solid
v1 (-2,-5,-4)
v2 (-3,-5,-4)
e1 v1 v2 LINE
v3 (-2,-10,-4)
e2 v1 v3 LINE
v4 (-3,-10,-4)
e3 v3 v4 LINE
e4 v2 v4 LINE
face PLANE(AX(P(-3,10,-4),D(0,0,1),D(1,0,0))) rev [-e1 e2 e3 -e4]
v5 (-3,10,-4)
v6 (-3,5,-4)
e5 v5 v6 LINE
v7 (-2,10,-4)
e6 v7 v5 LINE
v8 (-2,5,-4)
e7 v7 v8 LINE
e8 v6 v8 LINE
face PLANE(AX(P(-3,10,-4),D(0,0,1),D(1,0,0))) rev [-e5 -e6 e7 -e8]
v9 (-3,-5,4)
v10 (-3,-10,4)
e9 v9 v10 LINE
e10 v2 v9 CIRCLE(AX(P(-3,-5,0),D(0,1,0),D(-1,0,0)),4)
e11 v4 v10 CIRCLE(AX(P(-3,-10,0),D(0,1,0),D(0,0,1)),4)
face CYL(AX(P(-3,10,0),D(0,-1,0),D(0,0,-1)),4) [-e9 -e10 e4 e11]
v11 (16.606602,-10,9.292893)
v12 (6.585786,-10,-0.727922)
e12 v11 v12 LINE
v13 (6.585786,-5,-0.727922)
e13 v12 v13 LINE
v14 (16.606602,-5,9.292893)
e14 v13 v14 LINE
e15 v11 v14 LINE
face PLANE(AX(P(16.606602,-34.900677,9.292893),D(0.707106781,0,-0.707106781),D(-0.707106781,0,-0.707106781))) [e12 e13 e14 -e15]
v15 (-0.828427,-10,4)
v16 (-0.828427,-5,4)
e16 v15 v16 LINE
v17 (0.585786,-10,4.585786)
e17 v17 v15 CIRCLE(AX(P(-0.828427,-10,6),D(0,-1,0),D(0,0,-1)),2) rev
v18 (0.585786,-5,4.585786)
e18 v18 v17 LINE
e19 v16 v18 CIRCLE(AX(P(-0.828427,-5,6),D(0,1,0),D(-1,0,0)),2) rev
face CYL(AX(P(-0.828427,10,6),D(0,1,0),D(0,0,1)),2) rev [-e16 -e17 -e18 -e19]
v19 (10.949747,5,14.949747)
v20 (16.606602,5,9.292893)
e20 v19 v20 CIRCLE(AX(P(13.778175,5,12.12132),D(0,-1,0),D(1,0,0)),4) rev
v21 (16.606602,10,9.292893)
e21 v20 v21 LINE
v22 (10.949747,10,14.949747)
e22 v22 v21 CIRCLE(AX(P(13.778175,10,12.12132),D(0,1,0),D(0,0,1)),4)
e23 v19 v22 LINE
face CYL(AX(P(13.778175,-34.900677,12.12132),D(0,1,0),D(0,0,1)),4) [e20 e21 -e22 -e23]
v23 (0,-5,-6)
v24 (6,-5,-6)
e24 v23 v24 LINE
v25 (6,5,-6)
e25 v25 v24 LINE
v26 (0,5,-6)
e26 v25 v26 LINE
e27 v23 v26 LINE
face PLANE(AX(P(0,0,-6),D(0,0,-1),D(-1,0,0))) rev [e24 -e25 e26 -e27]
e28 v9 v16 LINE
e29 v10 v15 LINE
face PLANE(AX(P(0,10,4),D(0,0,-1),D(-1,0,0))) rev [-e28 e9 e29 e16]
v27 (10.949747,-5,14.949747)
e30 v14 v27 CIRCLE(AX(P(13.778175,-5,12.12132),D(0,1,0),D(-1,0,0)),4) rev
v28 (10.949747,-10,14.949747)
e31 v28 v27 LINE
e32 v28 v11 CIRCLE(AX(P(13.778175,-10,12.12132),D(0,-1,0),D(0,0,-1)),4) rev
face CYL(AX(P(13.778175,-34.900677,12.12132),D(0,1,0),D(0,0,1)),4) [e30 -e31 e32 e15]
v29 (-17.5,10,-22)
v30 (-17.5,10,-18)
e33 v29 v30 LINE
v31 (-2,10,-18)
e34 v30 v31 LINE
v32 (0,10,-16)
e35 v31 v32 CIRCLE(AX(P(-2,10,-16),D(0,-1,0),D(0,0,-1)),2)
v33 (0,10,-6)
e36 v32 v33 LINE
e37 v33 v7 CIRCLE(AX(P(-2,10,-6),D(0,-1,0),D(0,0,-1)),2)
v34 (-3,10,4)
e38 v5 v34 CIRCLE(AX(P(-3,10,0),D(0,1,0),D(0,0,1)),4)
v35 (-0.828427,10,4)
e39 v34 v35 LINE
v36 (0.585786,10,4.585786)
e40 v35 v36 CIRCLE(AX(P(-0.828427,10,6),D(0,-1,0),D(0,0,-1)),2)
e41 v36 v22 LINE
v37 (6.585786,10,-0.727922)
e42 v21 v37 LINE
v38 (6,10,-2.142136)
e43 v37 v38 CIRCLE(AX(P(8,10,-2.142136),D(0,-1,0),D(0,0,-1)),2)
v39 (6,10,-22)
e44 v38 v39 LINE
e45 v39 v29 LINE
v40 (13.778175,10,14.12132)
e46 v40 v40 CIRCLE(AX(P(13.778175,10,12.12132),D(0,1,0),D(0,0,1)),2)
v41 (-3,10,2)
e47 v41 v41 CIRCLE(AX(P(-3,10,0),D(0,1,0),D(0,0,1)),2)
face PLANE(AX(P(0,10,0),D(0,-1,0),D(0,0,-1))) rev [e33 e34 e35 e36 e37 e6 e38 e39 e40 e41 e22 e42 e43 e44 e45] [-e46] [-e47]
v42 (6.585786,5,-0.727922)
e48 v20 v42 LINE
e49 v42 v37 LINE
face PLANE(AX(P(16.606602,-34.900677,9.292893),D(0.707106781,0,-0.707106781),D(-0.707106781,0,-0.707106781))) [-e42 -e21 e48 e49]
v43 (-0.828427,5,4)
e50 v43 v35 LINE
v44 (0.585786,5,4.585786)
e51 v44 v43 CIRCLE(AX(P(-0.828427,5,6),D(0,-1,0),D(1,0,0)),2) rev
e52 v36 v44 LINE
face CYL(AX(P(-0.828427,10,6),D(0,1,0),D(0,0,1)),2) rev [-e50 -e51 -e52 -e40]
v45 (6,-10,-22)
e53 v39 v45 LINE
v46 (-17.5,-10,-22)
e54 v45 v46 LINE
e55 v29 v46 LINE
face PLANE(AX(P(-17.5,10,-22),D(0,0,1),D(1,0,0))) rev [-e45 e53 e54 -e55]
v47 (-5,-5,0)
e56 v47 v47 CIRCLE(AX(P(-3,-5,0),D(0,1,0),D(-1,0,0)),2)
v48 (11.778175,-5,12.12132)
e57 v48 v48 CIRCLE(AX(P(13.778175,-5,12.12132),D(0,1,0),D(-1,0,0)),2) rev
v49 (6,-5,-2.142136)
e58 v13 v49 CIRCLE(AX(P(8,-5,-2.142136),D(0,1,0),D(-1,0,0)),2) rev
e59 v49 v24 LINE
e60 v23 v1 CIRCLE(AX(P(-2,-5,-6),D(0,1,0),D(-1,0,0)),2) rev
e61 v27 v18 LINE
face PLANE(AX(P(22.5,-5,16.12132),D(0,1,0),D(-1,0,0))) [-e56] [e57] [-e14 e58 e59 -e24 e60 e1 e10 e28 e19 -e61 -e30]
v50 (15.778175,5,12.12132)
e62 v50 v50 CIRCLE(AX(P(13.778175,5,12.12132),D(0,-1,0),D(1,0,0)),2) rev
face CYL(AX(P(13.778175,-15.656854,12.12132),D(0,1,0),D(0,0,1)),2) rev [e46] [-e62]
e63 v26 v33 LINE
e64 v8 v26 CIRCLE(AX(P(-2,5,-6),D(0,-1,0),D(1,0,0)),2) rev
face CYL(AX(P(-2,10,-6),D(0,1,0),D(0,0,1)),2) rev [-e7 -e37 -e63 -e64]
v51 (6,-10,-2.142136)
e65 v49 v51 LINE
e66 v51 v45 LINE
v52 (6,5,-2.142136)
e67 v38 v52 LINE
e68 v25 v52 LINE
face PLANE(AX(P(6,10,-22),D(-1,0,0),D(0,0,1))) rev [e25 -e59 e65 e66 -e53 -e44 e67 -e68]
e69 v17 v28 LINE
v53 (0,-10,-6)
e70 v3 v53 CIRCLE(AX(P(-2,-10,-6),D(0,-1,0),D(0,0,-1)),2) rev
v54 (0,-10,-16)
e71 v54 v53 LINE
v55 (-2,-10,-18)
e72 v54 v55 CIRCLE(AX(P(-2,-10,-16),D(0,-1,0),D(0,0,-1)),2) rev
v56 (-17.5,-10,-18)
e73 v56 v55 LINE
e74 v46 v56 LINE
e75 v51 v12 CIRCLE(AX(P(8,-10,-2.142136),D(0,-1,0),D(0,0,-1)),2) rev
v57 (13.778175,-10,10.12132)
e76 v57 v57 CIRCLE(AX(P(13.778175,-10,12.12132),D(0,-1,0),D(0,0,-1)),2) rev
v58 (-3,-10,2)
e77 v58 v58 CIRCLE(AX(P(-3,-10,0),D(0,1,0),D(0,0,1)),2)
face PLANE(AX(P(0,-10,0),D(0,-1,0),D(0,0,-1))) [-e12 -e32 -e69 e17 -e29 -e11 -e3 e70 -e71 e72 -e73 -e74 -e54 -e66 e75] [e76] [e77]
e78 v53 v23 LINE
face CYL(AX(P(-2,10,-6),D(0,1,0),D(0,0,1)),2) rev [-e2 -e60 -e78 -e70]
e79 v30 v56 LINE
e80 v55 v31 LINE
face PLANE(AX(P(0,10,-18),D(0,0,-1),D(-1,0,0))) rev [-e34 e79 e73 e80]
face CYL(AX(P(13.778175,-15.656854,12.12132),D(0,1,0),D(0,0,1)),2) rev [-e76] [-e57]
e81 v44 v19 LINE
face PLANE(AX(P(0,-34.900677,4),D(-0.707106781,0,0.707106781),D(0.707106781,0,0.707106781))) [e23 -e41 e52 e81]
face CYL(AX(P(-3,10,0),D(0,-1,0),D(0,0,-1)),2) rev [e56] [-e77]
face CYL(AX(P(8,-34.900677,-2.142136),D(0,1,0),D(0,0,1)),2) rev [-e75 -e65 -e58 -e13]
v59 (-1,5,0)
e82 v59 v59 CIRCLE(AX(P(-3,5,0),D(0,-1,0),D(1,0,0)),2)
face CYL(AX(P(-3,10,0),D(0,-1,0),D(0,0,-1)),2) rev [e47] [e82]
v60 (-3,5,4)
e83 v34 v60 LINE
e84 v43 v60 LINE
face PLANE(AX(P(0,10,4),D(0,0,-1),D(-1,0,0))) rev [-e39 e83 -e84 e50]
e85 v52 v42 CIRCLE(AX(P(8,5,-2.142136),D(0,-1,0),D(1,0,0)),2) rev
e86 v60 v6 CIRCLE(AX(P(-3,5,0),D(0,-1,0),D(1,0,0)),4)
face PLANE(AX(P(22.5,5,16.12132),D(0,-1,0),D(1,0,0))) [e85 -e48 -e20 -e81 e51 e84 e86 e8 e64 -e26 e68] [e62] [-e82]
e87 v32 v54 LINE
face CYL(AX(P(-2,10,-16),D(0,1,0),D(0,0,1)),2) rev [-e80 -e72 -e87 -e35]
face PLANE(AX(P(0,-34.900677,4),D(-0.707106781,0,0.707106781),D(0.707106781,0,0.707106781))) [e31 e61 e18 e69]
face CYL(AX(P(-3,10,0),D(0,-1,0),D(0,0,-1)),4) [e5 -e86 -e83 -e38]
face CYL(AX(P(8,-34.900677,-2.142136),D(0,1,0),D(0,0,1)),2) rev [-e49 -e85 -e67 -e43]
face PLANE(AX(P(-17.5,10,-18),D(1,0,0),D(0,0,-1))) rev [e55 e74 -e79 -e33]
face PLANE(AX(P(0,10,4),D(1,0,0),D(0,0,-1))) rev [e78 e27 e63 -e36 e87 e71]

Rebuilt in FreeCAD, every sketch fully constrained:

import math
import FreeCAD as App
import Part
import Sketcher
Q = App.Units.Quantity


def edges_at(feature, points):
    """Names of the edges that pass closest to the given points."""
    edges = feature.Shape.Edges
    near = lambda p: min(range(len(edges)), key=lambda i: edges[i].distToShape(Part.Vertex(*p))[0])
    return sorted({f"Edge{near(p) + 1}" for p in points})


def add_polygon(sketch, points):
    """Adds a closed chain of lines whose ends are joined by coincident constraints."""
    first, n = sketch.GeometryCount, len(points)
    for a, b in zip(points, points[1:] + points[:1]):
        sketch.addGeometry(Part.LineSegment(App.Vector(*a, 0), App.Vector(*b, 0)), False)
    for i in range(n):
        sketch.addConstraint(Sketcher.Constraint("Coincident", first + i, 2, first + (i + 1) % n, 1))

doc = App.newDocument("Part")
body = doc.addObject("PartDesign::Body", "Body")

sketch1 = doc.addObject("Sketcher::SketchObject", "Sketch")
body.addObject(sketch1)
sketch1.AttachmentSupport = (doc.XZ_Plane, [""])
sketch1.MapMode = "FlatFace"
add_polygon(sketch1, [(0, -18), (0, 4), (6, 4), (6, -22), (-17.5, -22), (-17.5, -18)])
sketch1.addConstraint(Sketcher.Constraint("Vertical", 0))
sketch1.addConstraint(Sketcher.Constraint("Horizontal", 1))
sketch1.addConstraint(Sketcher.Constraint("Vertical", 2))
sketch1.addConstraint(Sketcher.Constraint("Horizontal", 3))
sketch1.addConstraint(Sketcher.Constraint("Vertical", 4))
sketch1.addConstraint(Sketcher.Constraint("Horizontal", 5))
sketch1.addConstraint(Sketcher.Constraint("PointOnObject", 0, 2, -2))
sketch1.addConstraint(Sketcher.Constraint("DistanceX", 1, 1, 1, 2, 6.0))
sketch1.addConstraint(Sketcher.Constraint("DistanceY", 0, 1, 0, 2, 22.0))
sketch1.addConstraint(Sketcher.Constraint("DistanceY", 2, 2, 2, 1, 26.0))
sketch1.addConstraint(Sketcher.Constraint("DistanceX", 3, 2, 3, 1, 23.5))
sketch1.addConstraint(Sketcher.Constraint("DistanceY", -1, 1, 0, 2, 4.0))
pad1 = doc.addObject("PartDesign::Pad", "Pad")
body.addObject(pad1)
pad1.Profile = sketch1
pad1.Length = 20
pad1.Midplane = True

sketch2 = doc.addObject("Sketcher::SketchObject", "Sketch001")
body.addObject(sketch2)
sketch2.AttachmentSupport = (doc.XZ_Plane, [""])
sketch2.MapMode = "FlatFace"
sketch2.addGeometry(Part.LineSegment(App.Vector(0, -4, 0), App.Vector(-3, -4, 0)), False)
sketch2.addGeometry(Part.ArcOfCircle(Part.Circle(App.Vector(-3, 0, 0), App.Vector(0, 0, 1), 4), math.radians(90), math.radians(270)), False)
sketch2.addGeometry(Part.LineSegment(App.Vector(-3, 4, 0), App.Vector(0, 4, 0)), False)
sketch2.addGeometry(Part.LineSegment(App.Vector(0, 4, 0), App.Vector(0, -4, 0)), False)
sketch2.addGeometry(Part.Circle(App.Vector(-3, 0, 0), App.Vector(0, 0, 1), 2), False)
sketch2.addConstraint(Sketcher.Constraint("Tangent", 0, 2, 1, 2))
sketch2.addConstraint(Sketcher.Constraint("Tangent", 1, 1, 2, 1))
sketch2.addConstraint(Sketcher.Constraint("Coincident", 2, 2, 3, 1))
sketch2.addConstraint(Sketcher.Constraint("Coincident", 3, 2, 0, 1))
sketch2.addConstraint(Sketcher.Constraint("Horizontal", 0))
sketch2.addConstraint(Sketcher.Constraint("Horizontal", 2))
sketch2.addConstraint(Sketcher.Constraint("Vertical", 3))
sketch2.addConstraint(Sketcher.Constraint("Coincident", 4, 3, 1, 3))
sketch2.addConstraint(Sketcher.Constraint("Symmetric", 2, 2, 3, 2, -1, 1))
sketch2.addConstraint(Sketcher.Constraint("Diameter", 4, 4.0))
sketch2.addConstraint(Sketcher.Constraint("Radius", 1, 4.0))
sketch2.addConstraint(Sketcher.Constraint("DistanceX", 0, 2, 0, 1, 3.0))
pad2 = doc.addObject("PartDesign::Pad", "Pad001")
body.addObject(pad2)
pad2.Profile = sketch2
pad2.Length = 20
pad2.Midplane = True

sketch3 = doc.addObject("Sketcher::SketchObject", "Sketch002")
body.addObject(sketch3)
sketch3.AttachmentSupport = (doc.XZ_Plane, [""])
sketch3.MapMode = "FlatFace"
sketch3.AttachmentOffset = App.Placement(App.Vector(0, 0, -10), App.Rotation())
sketch3.addGeometry(Part.LineSegment(App.Vector(0, 4, 0), App.Vector(10.9, 14.9, 0)), False)
sketch3.addGeometry(Part.ArcOfCircle(Part.Circle(App.Vector(13.8, 12.1, 0), App.Vector(0, 0, 1), 4), math.radians(-45), math.radians(135)), False)
sketch3.addGeometry(Part.LineSegment(App.Vector(16.6, 9.3, 0), App.Vector(6, -1.3, 0)), False)
sketch3.addGeometry(Part.LineSegment(App.Vector(6, -1.3, 0), App.Vector(0, 4, 0)), False)
sketch3.addConstraint(Sketcher.Constraint("Tangent", 0, 2, 1, 2))
sketch3.addConstraint(Sketcher.Constraint("Tangent", 1, 1, 2, 1))
sketch3.addConstraint(Sketcher.Constraint("Coincident", 2, 2, 3, 1))
sketch3.addConstraint(Sketcher.Constraint("Coincident", 3, 2, 0, 1))
sketch3.addConstraint(Sketcher.Constraint("PointOnObject", 3, 2, -2))
sketch3.addConstraint(Sketcher.Constraint("Parallel", 0, 2))
sketch3.addConstraint(Sketcher.Constraint("Radius", 1, 4.0))
sketch3.addConstraint(Sketcher.Constraint("Angle", 0, Q("45 deg")))
sketch3.addConstraint(Sketcher.Constraint("Distance", 2, 15.0))
sketch3.addConstraint(Sketcher.Constraint("DistanceX", -1, 1, 2, 2, 6.0))
sketch3.addConstraint(Sketcher.Constraint("DistanceY", -1, 1, 3, 2, 4.0))
pad3 = doc.addObject("PartDesign::Pad", "Pad002")
body.addObject(pad3)
pad3.Profile = sketch3
pad3.Length = 20

sketch4 = doc.addObject("Sketcher::SketchObject", "Sketch003")
body.addObject(sketch4)
sketch4.AttachmentSupport = (doc.XZ_Plane, [""])
sketch4.MapMode = "FlatFace"
sketch4.AttachmentOffset = App.Placement(App.Vector(0, 0, -10), App.Rotation())
sketch4.addGeometry(Part.Circle(App.Vector(13.8, 12.1, 0), App.Vector(0, 0, 1), 2), False)
sketch4.addConstraint(Sketcher.Constraint("Diameter", 0, 4.0))
sketch4.addConstraint(Sketcher.Constraint("DistanceY", -1, 1, 0, 3, 12.12132))
sketch4.addConstraint(Sketcher.Constraint("DistanceX", -1, 1, 0, 3, 13.778175))
pocket1 = doc.addObject("PartDesign::Pocket", "Pocket")
body.addObject(pocket1)
pocket1.Profile = sketch4
pocket1.Length = 20
pocket1.Reversed = True

sketch5 = doc.addObject("Sketcher::SketchObject", "Sketch004")
body.addObject(sketch5)
sketch5.AttachmentSupport = (doc.XY_Plane, [""])
sketch5.MapMode = "FlatFace"
sketch5.AttachmentOffset = App.Placement(App.Vector(0, 0, -6), App.Rotation())
add_polygon(sketch5, [(-18, 5), (-18, -5), (22, -5), (22, 5)])
sketch5.addConstraint(Sketcher.Constraint("Vertical", 0))
sketch5.addConstraint(Sketcher.Constraint("Horizontal", 1))
sketch5.addConstraint(Sketcher.Constraint("Vertical", 2))
sketch5.addConstraint(Sketcher.Constraint("Horizontal", 3))
sketch5.addConstraint(Sketcher.Constraint("DistanceX", 1, 1, 1, 2, 40.0))
sketch5.addConstraint(Sketcher.Constraint("DistanceY", 0, 2, 0, 1, 10.0))
sketch5.addConstraint(Sketcher.Constraint("DistanceY", 0, 2, -1, 1, 5.0))
sketch5.addConstraint(Sketcher.Constraint("DistanceX", 0, 2, -1, 1, 17.5))
pocket2 = doc.addObject("PartDesign::Pocket", "Pocket001")
body.addObject(pocket2)
pocket2.Profile = sketch5
pocket2.Type = "ThroughAll"
pocket2.Reversed = True
doc.recompute()

fillet = doc.addObject("PartDesign::Fillet", "Fillet")
body.addObject(fillet)
fillet.Base = (pocket2, edges_at(pocket2, [
    (6, 7.5, -1.314),
    (6, -7.5, -1.314),
    (0, -7.5, 4),
    (0, 7.5, 4),
    (0, 0, -18),
    (0, -7.5, -4),
    (0, 7.5, -4),
]))
fillet.Radius = 2

doc.recompute()
